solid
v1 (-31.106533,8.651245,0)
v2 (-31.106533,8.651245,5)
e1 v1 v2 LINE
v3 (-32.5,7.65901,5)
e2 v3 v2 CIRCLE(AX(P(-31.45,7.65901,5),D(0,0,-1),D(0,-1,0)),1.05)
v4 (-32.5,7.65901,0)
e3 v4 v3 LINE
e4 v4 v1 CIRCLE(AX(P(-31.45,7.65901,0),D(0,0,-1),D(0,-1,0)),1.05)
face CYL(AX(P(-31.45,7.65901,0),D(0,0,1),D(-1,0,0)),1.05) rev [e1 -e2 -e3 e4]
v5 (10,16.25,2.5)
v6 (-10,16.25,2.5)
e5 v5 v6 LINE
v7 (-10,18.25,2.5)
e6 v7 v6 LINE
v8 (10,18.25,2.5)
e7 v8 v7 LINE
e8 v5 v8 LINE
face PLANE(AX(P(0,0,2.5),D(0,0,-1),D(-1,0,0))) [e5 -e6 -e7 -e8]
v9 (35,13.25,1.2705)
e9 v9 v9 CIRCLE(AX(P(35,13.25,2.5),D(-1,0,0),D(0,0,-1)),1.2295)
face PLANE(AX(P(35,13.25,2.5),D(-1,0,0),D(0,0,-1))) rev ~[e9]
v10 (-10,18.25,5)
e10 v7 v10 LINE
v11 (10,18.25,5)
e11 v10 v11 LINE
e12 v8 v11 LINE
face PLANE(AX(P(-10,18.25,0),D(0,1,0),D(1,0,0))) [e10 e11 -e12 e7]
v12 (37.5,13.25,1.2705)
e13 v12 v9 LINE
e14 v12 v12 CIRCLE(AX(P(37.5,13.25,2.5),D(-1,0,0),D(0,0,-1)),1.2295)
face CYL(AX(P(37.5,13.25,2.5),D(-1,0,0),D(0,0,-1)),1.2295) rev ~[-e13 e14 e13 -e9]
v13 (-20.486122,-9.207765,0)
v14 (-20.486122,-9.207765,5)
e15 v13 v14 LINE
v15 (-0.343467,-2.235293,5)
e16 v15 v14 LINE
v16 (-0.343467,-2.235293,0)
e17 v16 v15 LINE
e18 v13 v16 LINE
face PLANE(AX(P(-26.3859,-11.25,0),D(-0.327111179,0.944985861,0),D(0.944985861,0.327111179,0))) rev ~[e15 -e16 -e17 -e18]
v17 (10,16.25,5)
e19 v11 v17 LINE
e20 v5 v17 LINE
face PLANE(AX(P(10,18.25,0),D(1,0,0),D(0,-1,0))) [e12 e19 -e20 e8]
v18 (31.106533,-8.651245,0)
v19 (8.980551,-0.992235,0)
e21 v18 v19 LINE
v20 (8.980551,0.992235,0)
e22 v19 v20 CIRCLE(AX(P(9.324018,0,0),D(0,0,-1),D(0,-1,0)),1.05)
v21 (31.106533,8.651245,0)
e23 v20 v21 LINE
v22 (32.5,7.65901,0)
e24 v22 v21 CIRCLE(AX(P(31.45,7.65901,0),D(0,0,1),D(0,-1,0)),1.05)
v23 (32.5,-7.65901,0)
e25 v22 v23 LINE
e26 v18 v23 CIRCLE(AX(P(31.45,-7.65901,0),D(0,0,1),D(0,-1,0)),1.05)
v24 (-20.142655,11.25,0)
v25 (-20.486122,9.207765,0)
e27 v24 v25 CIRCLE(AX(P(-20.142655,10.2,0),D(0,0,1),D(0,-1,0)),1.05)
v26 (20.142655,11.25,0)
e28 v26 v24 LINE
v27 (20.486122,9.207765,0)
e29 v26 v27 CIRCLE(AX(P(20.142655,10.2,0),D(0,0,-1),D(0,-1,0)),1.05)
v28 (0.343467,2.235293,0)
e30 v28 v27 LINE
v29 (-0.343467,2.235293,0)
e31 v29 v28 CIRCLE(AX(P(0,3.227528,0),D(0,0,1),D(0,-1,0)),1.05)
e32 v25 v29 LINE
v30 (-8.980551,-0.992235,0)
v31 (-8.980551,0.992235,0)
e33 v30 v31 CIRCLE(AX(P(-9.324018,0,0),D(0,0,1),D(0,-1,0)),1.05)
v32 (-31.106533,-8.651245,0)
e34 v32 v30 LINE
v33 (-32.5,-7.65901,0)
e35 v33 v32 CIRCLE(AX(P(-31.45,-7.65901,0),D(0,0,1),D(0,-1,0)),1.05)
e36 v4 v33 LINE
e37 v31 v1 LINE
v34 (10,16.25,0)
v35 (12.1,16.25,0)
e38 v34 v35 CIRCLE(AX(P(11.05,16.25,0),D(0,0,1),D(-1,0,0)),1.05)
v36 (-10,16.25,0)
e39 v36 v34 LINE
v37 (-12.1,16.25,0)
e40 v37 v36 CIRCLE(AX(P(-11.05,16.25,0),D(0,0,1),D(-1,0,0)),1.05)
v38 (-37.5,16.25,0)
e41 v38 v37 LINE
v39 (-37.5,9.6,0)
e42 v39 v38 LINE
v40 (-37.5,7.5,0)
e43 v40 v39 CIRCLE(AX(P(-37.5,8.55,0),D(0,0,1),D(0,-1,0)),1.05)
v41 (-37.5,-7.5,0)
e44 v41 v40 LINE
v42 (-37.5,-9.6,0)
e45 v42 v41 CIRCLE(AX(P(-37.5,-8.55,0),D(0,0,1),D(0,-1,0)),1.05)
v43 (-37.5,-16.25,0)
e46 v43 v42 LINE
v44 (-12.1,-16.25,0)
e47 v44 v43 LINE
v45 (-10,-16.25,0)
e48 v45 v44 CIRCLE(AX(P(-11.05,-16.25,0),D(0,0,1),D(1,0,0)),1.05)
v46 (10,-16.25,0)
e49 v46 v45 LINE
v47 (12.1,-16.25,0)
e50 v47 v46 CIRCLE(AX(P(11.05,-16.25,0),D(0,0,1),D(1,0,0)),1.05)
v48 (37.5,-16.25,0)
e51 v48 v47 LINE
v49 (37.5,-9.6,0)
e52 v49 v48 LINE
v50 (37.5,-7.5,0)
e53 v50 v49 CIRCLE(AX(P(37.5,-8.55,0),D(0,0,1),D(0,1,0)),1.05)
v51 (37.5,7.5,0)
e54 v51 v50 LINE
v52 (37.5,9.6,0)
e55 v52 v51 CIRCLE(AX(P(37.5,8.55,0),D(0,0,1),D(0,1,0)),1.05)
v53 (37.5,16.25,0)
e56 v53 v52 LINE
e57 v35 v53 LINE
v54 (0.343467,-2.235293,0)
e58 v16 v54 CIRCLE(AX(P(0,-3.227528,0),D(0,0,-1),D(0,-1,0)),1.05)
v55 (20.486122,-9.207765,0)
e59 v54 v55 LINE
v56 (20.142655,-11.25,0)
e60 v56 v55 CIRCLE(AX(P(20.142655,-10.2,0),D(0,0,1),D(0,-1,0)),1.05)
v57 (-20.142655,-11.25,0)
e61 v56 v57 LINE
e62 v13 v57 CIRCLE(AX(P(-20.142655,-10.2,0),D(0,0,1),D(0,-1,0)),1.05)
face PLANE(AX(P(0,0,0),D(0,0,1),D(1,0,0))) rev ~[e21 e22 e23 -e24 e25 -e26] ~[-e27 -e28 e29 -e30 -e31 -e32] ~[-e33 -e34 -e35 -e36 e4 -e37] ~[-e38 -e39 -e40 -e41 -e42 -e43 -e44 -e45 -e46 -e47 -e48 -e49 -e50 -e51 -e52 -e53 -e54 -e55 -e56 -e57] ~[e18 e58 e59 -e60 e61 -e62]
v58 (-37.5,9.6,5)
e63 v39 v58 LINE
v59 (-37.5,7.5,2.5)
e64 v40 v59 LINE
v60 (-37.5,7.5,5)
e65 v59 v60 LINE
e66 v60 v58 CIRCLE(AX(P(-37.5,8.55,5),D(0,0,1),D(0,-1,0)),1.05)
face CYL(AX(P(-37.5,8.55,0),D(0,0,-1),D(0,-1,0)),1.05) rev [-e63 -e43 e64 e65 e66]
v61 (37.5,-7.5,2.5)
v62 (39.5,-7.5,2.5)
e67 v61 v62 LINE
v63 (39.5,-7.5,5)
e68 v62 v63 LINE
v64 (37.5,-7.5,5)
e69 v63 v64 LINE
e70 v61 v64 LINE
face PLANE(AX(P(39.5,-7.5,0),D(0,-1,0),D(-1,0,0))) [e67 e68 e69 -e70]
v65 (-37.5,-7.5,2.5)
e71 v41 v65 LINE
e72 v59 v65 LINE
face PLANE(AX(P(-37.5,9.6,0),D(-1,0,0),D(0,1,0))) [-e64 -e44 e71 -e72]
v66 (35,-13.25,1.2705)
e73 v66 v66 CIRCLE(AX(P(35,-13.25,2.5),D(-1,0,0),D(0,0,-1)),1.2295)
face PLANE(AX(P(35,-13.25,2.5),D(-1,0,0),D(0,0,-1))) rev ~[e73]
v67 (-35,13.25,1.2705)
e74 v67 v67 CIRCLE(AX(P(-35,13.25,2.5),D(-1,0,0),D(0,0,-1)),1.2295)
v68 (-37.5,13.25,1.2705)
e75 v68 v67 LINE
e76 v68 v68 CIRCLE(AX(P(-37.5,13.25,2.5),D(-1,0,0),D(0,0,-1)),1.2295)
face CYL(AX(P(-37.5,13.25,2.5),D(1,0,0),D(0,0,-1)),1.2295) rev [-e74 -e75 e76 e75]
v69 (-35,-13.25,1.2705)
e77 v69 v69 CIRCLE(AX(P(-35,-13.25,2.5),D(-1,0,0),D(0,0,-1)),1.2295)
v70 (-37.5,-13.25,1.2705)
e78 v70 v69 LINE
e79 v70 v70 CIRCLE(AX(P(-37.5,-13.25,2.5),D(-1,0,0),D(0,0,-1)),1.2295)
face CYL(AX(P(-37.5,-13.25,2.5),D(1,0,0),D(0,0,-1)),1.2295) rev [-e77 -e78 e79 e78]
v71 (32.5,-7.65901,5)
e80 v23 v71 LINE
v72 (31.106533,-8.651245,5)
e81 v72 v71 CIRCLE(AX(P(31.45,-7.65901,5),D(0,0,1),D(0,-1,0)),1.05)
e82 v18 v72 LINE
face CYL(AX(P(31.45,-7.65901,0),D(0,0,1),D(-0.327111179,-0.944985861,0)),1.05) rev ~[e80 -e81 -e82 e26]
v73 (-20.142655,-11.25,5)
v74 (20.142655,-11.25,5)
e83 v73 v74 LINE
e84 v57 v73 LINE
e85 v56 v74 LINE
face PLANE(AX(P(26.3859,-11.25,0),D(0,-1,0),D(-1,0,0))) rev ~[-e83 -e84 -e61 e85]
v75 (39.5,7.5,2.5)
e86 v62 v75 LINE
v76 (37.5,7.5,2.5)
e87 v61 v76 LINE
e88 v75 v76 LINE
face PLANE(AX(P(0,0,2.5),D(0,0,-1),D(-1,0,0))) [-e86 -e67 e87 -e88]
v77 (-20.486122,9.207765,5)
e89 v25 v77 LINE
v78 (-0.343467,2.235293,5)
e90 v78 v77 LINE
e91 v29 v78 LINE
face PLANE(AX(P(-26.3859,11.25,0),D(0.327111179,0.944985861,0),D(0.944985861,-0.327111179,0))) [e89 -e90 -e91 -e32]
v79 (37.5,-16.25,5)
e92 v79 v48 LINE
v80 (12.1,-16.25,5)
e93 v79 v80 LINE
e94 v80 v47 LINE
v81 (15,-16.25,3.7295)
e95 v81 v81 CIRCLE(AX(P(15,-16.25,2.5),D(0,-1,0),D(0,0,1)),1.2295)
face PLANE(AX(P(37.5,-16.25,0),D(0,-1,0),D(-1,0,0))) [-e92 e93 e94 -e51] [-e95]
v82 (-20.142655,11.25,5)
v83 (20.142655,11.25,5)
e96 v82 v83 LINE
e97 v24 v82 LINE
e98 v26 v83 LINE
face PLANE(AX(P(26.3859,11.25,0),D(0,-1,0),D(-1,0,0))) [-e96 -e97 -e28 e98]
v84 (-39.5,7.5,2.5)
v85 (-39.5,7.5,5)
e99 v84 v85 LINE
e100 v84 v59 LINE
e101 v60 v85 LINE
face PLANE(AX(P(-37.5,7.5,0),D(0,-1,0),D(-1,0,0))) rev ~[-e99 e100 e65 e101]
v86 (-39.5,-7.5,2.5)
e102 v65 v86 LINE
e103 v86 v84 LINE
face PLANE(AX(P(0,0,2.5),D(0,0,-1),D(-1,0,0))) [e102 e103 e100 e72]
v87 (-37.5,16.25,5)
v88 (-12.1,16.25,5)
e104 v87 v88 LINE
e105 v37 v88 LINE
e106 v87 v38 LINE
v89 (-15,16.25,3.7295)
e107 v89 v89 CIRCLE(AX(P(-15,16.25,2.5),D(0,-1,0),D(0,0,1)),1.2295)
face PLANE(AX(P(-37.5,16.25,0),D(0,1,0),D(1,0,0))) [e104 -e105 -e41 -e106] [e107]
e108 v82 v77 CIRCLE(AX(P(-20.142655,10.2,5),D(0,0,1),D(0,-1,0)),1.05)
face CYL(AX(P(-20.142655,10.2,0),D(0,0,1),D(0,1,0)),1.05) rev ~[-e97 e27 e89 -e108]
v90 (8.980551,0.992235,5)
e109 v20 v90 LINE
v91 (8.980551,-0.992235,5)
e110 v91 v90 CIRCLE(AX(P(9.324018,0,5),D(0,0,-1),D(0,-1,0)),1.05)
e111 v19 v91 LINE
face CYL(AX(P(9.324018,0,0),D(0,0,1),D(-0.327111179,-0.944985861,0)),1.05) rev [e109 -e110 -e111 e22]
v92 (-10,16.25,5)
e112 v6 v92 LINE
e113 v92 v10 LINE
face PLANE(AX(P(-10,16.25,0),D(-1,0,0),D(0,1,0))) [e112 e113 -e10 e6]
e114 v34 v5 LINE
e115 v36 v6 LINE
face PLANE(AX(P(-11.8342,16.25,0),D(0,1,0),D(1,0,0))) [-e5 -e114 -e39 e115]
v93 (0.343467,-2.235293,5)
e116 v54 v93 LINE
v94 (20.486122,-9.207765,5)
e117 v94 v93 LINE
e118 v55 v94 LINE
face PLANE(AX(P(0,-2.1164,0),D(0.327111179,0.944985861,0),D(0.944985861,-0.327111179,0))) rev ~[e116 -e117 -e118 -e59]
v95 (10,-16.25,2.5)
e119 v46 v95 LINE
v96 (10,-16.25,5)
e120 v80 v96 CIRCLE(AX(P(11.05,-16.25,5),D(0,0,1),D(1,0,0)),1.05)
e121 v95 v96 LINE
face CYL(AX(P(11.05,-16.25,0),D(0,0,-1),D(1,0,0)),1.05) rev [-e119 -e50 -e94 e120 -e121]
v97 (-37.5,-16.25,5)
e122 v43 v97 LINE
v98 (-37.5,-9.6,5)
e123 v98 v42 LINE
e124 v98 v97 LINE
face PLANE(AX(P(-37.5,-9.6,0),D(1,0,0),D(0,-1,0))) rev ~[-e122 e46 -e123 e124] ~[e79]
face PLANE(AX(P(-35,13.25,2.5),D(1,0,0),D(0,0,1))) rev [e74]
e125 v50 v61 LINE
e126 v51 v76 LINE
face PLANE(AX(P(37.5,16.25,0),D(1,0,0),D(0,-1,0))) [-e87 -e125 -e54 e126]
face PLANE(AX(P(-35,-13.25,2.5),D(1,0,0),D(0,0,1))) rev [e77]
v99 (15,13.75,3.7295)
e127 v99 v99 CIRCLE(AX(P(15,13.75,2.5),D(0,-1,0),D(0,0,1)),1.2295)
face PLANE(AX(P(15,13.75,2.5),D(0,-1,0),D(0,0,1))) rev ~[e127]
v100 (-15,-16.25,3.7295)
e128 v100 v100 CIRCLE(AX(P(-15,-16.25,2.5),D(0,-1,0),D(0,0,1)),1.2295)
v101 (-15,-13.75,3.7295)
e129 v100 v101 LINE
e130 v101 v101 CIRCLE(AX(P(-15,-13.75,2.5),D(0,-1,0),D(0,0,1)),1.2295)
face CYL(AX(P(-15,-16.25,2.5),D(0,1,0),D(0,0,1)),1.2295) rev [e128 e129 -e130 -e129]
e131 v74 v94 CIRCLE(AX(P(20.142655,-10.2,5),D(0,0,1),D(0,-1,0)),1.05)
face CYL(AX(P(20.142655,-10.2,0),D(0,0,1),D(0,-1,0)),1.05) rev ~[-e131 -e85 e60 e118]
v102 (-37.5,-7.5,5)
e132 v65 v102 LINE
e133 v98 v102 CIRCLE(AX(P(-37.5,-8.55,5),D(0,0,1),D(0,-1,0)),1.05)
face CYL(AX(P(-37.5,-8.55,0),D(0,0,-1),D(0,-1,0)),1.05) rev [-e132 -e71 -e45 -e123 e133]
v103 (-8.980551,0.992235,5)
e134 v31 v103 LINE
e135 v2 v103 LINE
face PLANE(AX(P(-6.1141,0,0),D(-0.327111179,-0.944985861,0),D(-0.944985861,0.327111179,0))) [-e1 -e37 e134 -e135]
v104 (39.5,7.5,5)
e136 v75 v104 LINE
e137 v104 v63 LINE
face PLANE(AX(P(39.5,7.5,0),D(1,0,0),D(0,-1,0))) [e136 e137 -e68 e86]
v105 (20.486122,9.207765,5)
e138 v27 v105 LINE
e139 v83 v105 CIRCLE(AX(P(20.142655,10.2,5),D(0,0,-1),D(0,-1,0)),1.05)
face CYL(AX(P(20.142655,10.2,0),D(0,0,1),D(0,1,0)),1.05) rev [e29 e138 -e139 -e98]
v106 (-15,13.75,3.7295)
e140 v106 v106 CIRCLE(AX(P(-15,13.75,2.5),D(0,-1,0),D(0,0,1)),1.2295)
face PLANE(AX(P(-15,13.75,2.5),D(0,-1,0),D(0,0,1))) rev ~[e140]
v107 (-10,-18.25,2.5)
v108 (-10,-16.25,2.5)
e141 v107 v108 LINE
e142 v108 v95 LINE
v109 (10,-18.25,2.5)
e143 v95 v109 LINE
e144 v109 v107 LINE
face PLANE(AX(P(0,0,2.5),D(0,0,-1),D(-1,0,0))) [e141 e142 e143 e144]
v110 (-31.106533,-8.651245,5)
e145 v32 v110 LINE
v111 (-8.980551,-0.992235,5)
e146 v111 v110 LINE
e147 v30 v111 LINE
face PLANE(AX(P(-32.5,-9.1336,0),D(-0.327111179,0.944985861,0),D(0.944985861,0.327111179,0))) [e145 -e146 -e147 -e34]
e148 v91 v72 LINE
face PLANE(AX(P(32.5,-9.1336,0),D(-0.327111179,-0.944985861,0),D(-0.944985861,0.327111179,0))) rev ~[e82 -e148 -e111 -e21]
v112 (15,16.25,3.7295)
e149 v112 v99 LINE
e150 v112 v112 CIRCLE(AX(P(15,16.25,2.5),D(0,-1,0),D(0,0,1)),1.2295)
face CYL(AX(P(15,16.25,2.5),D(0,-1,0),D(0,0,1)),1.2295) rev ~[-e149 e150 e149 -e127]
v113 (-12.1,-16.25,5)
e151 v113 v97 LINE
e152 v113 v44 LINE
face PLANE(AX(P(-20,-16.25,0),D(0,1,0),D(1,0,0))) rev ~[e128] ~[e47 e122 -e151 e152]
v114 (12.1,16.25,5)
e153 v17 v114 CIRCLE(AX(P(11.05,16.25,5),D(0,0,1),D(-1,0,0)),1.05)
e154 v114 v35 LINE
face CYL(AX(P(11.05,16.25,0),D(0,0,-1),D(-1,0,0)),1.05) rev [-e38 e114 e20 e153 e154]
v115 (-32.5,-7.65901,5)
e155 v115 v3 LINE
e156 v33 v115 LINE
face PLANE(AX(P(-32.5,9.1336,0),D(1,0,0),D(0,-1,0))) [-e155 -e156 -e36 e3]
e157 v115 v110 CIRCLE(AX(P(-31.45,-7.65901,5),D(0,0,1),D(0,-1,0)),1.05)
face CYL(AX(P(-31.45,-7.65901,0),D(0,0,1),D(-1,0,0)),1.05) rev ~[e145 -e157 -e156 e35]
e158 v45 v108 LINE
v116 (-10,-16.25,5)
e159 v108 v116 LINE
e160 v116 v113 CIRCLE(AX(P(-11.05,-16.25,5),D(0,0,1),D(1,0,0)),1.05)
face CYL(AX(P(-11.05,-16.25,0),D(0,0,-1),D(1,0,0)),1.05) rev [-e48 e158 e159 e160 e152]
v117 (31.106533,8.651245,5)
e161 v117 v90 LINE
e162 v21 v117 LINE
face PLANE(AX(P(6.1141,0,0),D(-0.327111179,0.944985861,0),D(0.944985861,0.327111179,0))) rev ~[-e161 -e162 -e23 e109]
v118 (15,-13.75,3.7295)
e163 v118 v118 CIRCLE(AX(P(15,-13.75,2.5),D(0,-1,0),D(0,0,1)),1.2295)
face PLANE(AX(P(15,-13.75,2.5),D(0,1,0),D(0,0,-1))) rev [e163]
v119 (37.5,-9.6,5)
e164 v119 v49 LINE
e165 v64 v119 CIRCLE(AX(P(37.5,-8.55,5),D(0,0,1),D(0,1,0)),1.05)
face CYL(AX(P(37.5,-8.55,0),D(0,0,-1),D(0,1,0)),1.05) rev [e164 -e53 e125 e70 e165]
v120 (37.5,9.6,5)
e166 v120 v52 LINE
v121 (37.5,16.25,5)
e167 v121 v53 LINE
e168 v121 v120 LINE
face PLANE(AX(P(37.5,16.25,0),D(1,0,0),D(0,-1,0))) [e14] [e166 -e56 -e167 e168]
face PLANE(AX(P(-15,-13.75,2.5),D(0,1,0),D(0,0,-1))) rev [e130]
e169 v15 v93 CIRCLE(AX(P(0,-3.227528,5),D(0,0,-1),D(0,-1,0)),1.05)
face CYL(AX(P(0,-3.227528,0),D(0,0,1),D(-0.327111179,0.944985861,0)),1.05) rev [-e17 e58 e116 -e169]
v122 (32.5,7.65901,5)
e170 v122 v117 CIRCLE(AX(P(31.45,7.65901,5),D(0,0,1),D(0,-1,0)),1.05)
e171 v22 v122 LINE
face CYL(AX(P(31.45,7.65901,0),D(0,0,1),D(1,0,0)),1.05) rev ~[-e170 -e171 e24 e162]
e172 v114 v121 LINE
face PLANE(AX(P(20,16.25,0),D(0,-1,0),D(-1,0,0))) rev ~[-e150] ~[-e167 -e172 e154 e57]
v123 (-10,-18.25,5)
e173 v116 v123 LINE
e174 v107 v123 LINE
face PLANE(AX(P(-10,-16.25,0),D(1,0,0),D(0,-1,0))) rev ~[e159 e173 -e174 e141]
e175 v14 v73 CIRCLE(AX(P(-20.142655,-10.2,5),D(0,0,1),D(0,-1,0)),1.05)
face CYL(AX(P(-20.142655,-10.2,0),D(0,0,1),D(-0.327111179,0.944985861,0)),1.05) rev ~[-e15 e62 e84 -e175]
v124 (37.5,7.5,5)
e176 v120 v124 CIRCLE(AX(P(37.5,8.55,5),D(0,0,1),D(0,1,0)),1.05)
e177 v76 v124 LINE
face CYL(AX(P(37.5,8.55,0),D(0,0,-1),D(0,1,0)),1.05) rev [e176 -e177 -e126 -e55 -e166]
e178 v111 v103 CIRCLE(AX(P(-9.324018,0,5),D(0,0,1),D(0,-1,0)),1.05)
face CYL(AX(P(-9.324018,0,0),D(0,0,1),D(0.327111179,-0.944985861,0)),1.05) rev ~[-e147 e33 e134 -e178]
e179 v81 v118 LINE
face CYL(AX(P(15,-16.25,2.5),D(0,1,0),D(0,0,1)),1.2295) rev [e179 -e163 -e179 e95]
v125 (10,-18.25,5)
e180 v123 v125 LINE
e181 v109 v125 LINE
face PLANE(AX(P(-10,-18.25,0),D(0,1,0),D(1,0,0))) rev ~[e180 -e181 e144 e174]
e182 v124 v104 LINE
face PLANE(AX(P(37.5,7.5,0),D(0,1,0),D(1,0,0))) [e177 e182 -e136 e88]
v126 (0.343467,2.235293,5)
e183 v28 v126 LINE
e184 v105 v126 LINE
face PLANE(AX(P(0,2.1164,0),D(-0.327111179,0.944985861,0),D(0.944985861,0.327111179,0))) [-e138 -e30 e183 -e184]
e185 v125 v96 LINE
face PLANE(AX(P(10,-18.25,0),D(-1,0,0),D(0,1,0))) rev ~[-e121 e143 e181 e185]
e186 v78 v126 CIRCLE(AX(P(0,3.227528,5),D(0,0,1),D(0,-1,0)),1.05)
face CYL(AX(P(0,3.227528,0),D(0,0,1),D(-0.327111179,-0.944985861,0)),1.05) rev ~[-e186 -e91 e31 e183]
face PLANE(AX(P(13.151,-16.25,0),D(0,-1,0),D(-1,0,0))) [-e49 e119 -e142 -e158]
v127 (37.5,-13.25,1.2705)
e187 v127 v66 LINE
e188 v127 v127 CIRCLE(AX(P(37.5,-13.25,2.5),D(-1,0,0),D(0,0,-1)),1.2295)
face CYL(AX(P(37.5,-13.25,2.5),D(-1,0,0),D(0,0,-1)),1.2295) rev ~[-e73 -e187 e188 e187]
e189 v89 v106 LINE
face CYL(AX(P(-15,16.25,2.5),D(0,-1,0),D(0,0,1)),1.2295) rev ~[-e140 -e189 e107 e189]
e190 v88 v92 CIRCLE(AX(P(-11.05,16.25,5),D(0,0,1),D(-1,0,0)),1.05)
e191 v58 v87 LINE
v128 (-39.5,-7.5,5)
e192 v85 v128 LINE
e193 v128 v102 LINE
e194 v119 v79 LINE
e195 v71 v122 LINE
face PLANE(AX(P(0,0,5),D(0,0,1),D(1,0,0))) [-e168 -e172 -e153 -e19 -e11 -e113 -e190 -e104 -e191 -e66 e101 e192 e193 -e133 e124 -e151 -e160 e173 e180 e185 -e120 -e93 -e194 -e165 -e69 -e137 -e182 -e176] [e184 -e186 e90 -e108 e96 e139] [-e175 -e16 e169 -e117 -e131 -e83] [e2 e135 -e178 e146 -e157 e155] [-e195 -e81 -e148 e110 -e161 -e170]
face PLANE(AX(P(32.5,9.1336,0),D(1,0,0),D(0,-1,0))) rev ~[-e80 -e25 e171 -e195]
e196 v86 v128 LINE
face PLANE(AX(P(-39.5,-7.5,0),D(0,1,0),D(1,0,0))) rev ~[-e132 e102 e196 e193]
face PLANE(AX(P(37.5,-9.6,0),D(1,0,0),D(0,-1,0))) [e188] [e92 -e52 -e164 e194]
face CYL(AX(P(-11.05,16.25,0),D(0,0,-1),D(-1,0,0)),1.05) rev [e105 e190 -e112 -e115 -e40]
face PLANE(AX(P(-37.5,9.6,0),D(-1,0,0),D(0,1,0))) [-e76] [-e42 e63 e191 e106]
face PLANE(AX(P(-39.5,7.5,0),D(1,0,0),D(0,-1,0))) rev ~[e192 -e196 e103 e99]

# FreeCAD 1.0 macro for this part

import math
import FreeCAD as App
import Part
import Sketcher
Q = App.Units.Quantity


def edges_at(feature, points):
    """Names of the edges that pass closest to the given points."""
    edges = feature.Shape.Edges
    near = lambda p: min(range(len(edges)), key=lambda i: edges[i].distToShape(Part.Vertex(*p))[0])
    return sorted({f"Edge{near(p) + 1}" for p in points})

doc = App.newDocument("Part")
body = doc.addObject("PartDesign::Body", "Body")

# Sketch on XY plane
sketch1 = body.newObject("Sketcher::SketchObject", "Sketch")
sketch1.AttachmentSupport = (doc.getObject("XY_Plane"), [""])
sketch1.MapMode = "FlatFace"
sketch1.addGeometry(Part.LineSegment(App.Vector(-37.5, 16.2, 0), App.Vector(-37.5, 9.6, 0)), False)
sketch1.addGeometry(Part.ArcOfCircle(Part.Circle(App.Vector(-37.5, 8.6, 0), App.Vector(0, 0, 1), 1.1), math.radians(-90), math.radians(90)), False)
sketch1.addGeometry(Part.LineSegment(App.Vector(-37.5, 7.5, 0), App.Vector(-39.5, 7.5, 0)), False)
sketch1.addGeometry(Part.LineSegment(App.Vector(-39.5, 7.5, 0), App.Vector(-39.5, -7.5, 0)), False)
sketch1.addGeometry(Part.LineSegment(App.Vector(-39.5, -7.5, 0), App.Vector(-37.5, -7.5, 0)), False)
sketch1.addGeometry(Part.ArcOfCircle(Part.Circle(App.Vector(-37.5, -8.6, 0), App.Vector(0, 0, 1), 1), math.radians(-90), math.radians(90)), False)
sketch1.addGeometry(Part.LineSegment(App.Vector(-37.5, -9.6, 0), App.Vector(-37.5, -16.2, 0)), False)
sketch1.addGeometry(Part.LineSegment(App.Vector(-37.5, -16.2, 0), App.Vector(-12.1, -16.2, 0)), False)
sketch1.addGeometry(Part.ArcOfCircle(Part.Circle(App.Vector(-11.1, -16.2, 0), App.Vector(0, 0, 1), 1.1), math.radians(0), math.radians(180)), False)
sketch1.addGeometry(Part.LineSegment(App.Vector(-10, -16.2, 0), App.Vector(-10, -18.2, 0)), False)
sketch1.addGeometry(Part.LineSegment(App.Vector(-10, -18.2, 0), App.Vector(10, -18.2, 0)), False)
sketch1.addGeometry(Part.LineSegment(App.Vector(10, -18.2, 0), App.Vector(10, -16.2, 0)), False)
sketch1.addGeometry(Part.ArcOfCircle(Part.Circle(App.Vector(11.1, -16.2, 0), App.Vector(0, 0, 1), 1), math.radians(0), math.radians(180)), False)
sketch1.addGeometry(Part.LineSegment(App.Vector(12.1, -16.2, 0), App.Vector(37.5, -16.2, 0)), False)
sketch1.addGeometry(Part.LineSegment(App.Vector(37.5, -16.2, 0), App.Vector(37.5, -9.6, 0)), False)
sketch1.addGeometry(Part.ArcOfCircle(Part.Circle(App.Vector(37.5, -8.6, 0), App.Vector(0, 0, 1), 1.1), math.radians(90), math.radians(270)), False)
sketch1.addGeometry(Part.LineSegment(App.Vector(37.5, -7.5, 0), App.Vector(39.5, -7.5, 0)), False)
sketch1.addGeometry(Part.LineSegment(App.Vector(39.5, -7.5, 0), App.Vector(39.5, 7.5, 0)), False)
sketch1.addGeometry(Part.LineSegment(App.Vector(39.5, 7.5, 0), App.Vector(37.5, 7.5, 0)), False)
sketch1.addGeometry(Part.ArcOfCircle(Part.Circle(App.Vector(37.5, 8.6, 0), App.Vector(0, 0, 1), 1), math.radians(90), math.radians(270)), False)
sketch1.addGeometry(Part.LineSegment(App.Vector(37.5, 9.6, 0), App.Vector(37.5, 16.2, 0)), False)
sketch1.addGeometry(Part.LineSegment(App.Vector(37.5, 16.2, 0), App.Vector(12.1, 16.2, 0)), False)
sketch1.addGeometry(Part.ArcOfCircle(Part.Circle(App.Vector(11.1, 16.2, 0), App.Vector(0, 0, 1), 1.1), math.radians(180), math.radians(360)), False)
sketch1.addGeometry(Part.LineSegment(App.Vector(10, 16.2, 0), App.Vector(10, 18.2, 0)), False)
sketch1.addGeometry(Part.LineSegment(App.Vector(10, 18.2, 0), App.Vector(-10, 18.2, 0)), False)
sketch1.addGeometry(Part.LineSegment(App.Vector(-10, 18.2, 0), App.Vector(-10, 16.2, 0)), False)
sketch1.addGeometry(Part.ArcOfCircle(Part.Circle(App.Vector(-11.1, 16.2, 0), App.Vector(0, 0, 1), 1), math.radians(180), math.radians(360)), False)
sketch1.addGeometry(Part.LineSegment(App.Vector(-12.1, 16.2, 0), App.Vector(-37.5, 16.2, 0)), False)
sketch1.addConstraint(Sketcher.Constraint("Coincident", 0, 2, 1, 2))
sketch1.addConstraint(Sketcher.Constraint("Tangent", 1, 1, 2, 1))
sketch1.addConstraint(Sketcher.Constraint("Coincident", 2, 2, 3, 1))
sketch1.addConstraint(Sketcher.Constraint("Coincident", 3, 2, 4, 1))
sketch1.addConstraint(Sketcher.Constraint("Tangent", 4, 2, 5, 2))
sketch1.addConstraint(Sketcher.Constraint("Coincident", 5, 1, 6, 1))
sketch1.addConstraint(Sketcher.Constraint("Coincident", 6, 2, 7, 1))
sketch1.addConstraint(Sketcher.Constraint("Coincident", 7, 2, 8, 2))
sketch1.addConstraint(Sketcher.Constraint("Tangent", 8, 1, 9, 1))
sketch1.addConstraint(Sketcher.Constraint("Coincident", 9, 2, 10, 1))
sketch1.addConstraint(Sketcher.Constraint("Coincident", 10, 2, 11, 1))
sketch1.addConstraint(Sketcher.Constraint("Tangent", 11, 2, 12, 2))
sketch1.addConstraint(Sketcher.Constraint("Coincident", 12, 1, 13, 1))
sketch1.addConstraint(Sketcher.Constraint("Coincident", 13, 2, 14, 1))
sketch1.addConstraint(Sketcher.Constraint("Coincident", 14, 2, 15, 2))
sketch1.addConstraint(Sketcher.Constraint("Tangent", 15, 1, 16, 1))
sketch1.addConstraint(Sketcher.Constraint("Coincident", 16, 2, 17, 1))
sketch1.addConstraint(Sketcher.Constraint("Coincident", 17, 2, 18, 1))
sketch1.addConstraint(Sketcher.Constraint("Tangent", 18, 2, 19, 2))
sketch1.addConstraint(Sketcher.Constraint("Coincident", 19, 1, 20, 1))
sketch1.addConstraint(Sketcher.Constraint("Coincident", 20, 2, 21, 1))
sketch1.addConstraint(Sketcher.Constraint("Coincident", 21, 2, 22, 2))
sketch1.addConstraint(Sketcher.Constraint("Tangent", 22, 1, 23, 1))
sketch1.addConstraint(Sketcher.Constraint("Coincident", 23, 2, 24, 1))
sketch1.addConstraint(Sketcher.Constraint("Coincident", 24, 2, 25, 1))
sketch1.addConstraint(Sketcher.Constraint("Tangent", 25, 2, 26, 2))
sketch1.addConstraint(Sketcher.Constraint("Coincident", 26, 1, 27, 1))
sketch1.addConstraint(Sketcher.Constraint("Coincident", 27, 2, 0, 1))
sketch1.addConstraint(Sketcher.Constraint("Vertical", 0))
sketch1.addConstraint(Sketcher.Constraint("Horizontal", 2))
sketch1.addConstraint(Sketcher.Constraint("Vertical", 3))
sketch1.addConstraint(Sketcher.Constraint("Horizontal", 4))
sketch1.addConstraint(Sketcher.Constraint("Vertical", 6))
sketch1.addConstraint(Sketcher.Constraint("Horizontal", 7))
sketch1.addConstraint(Sketcher.Constraint("Vertical", 9))
sketch1.addConstraint(Sketcher.Constraint("Horizontal", 10))
sketch1.addConstraint(Sketcher.Constraint("Vertical", 11))
sketch1.addConstraint(Sketcher.Constraint("Horizontal", 13))
sketch1.addConstraint(Sketcher.Constraint("Vertical", 14))
sketch1.addConstraint(Sketcher.Constraint("Horizontal", 16))
sketch1.addConstraint(Sketcher.Constraint("Vertical", 17))
sketch1.addConstraint(Sketcher.Constraint("Horizontal", 18))
sketch1.addConstraint(Sketcher.Constraint("Vertical", 20))
sketch1.addConstraint(Sketcher.Constraint("Horizontal", 21))
sketch1.addConstraint(Sketcher.Constraint("Vertical", 23))
sketch1.addConstraint(Sketcher.Constraint("Horizontal", 24))
sketch1.addConstraint(Sketcher.Constraint("Vertical", 25))
sketch1.addConstraint(Sketcher.Constraint("Horizontal", 27))
sketch1.addConstraint(Sketcher.Constraint("Equal", 1, 5))
sketch1.addConstraint(Sketcher.Constraint("Equal", 5, 8))
sketch1.addConstraint(Sketcher.Constraint("Equal", 8, 12))
sketch1.addConstraint(Sketcher.Constraint("Equal", 12, 15))
sketch1.addConstraint(Sketcher.Constraint("Equal", 15, 19))
sketch1.addConstraint(Sketcher.Constraint("Equal", 19, 22))
sketch1.addConstraint(Sketcher.Constraint("Equal", 22, 26))
sketch1.addConstraint(Sketcher.Constraint("Symmetric", 1, 3, 15, 3, -1, 1))
sketch1.addConstraint(Sketcher.Constraint("Symmetric", 5, 3, 19, 3, -1, 1))
sketch1.addConstraint(Sketcher.Constraint("Symmetric", 8, 3, 22, 3, -1, 1))
sketch1.addConstraint(Sketcher.Constraint("Symmetric", 12, 3, 26, 3, -1, 1))
sketch1.addConstraint(Sketcher.Constraint("Symmetric", 6, 2, 20, 2, -1, 1))
sketch1.addConstraint(Sketcher.Constraint("Symmetric", 13, 2, 27, 2, -1, 1))
sketch1.addConstraint(Sketcher.Constraint("Symmetric", 8, 3, 12, 3, -2))
sketch1.addConstraint(Sketcher.Constraint("Symmetric", 5, 3, 15, 3, -2))
sketch1.addConstraint(Sketcher.Constraint("Symmetric", 6, 2, 13, 2, -2))
sketch1.addConstraint(Sketcher.Constraint("Horizontal", 12, 3, 6, 2))
sketch1.addConstraint(Sketcher.Constraint("Vertical", 5, 3, 0, 2))
sketch1.addConstraint(Sketcher.Constraint("Equal", 4, 16))
sketch1.addConstraint(Sketcher.Constraint("Equal", 18, 9))
sketch1.addConstraint(Sketcher.Constraint("Equal", 11, 23))
sketch1.addConstraint(Sketcher.Constraint("DistanceX", 2, 2, 2, 1, Q("2 mm")))
sketch1.addConstraint(Sketcher.Constraint("DistanceX", 10, 1, 10, 2, Q("20 mm")))
sketch1.addConstraint(Sketcher.Constraint("Radius", 1, Q("1.05 mm")))
sketch1.addConstraint(Sketcher.Constraint("DistanceX", 5, 3, 15, 3, Q("75 mm")))
sketch1.addConstraint(Sketcher.Constraint("DistanceY", 12, 3, 22, 3, Q("32.5 mm")))
sketch1.addConstraint(Sketcher.Constraint("DistanceY", 3, 2, 3, 1, Q("15 mm")))
pad1 = body.newObject("PartDesign::Pad", "Pad")
pad1.Profile = sketch1
pad1.Length = 5

# Sketch on XY plane
sketch2 = body.newObject("Sketcher::SketchObject", "Sketch001")
sketch2.AttachmentSupport = (doc.getObject("XY_Plane"), [""])
sketch2.MapMode = "FlatFace"
sketch2.addGeometry(Part.LineSegment(App.Vector(-38, 21, 0), App.Vector(-38, -14, 0)), False)
sketch2.addGeometry(Part.LineSegment(App.Vector(-38, -14, 0), App.Vector(-43, -14, 0)), False)
sketch2.addGeometry(Part.LineSegment(App.Vector(-43, -14, 0), App.Vector(-43, 21, 0)), False)
sketch2.addGeometry(Part.LineSegment(App.Vector(-43, 21, 0), App.Vector(-38, 21, 0)), False)
sketch2.addGeometry(Part.LineSegment(App.Vector(-18, -16, 0), App.Vector(13, -16, 0)), False)
sketch2.addGeometry(Part.LineSegment(App.Vector(13, -16, 0), App.Vector(13, -22, 0)), False)
sketch2.addGeometry(Part.LineSegment(App.Vector(13, -22, 0), App.Vector(-18, -22, 0)), False)
sketch2.addGeometry(Part.LineSegment(App.Vector(-18, -22, 0), App.Vector(-18, -16, 0)), False)
sketch2.addGeometry(Part.LineSegment(App.Vector(38, -17, 0), App.Vector(38, 17, 0)), False)
sketch2.addGeometry(Part.LineSegment(App.Vector(38, 17, 0), App.Vector(46, 17, 0)), False)
sketch2.addGeometry(Part.LineSegment(App.Vector(46, 17, 0), App.Vector(46, -17, 0)), False)
sketch2.addGeometry(Part.LineSegment(App.Vector(46, -17, 0), App.Vector(38, -17, 0)), False)
sketch2.addGeometry(Part.LineSegment(App.Vector(17, 25, 0), App.Vector(17, 16, 0)), False)
sketch2.addGeometry(Part.LineSegment(App.Vector(17, 16, 0), App.Vector(-12, 16, 0)), False)
sketch2.addGeometry(Part.LineSegment(App.Vector(-12, 16, 0), App.Vector(-12, 25, 0)), False)
sketch2.addGeometry(Part.LineSegment(App.Vector(-12, 25, 0), App.Vector(17, 25, 0)), False)
sketch2.addConstraint(Sketcher.Constraint("Coincident", 0, 2, 1, 1))
sketch2.addConstraint(Sketcher.Constraint("Coincident", 1, 2, 2, 1))
sketch2.addConstraint(Sketcher.Constraint("Coincident", 2, 2, 3, 1))
sketch2.addConstraint(Sketcher.Constraint("Coincident", 3, 2, 0, 1))
sketch2.addConstraint(Sketcher.Constraint("Coincident", 4, 2, 5, 1))
sketch2.addConstraint(Sketcher.Constraint("Coincident", 5, 2, 6, 1))
sketch2.addConstraint(Sketcher.Constraint("Coincident", 6, 2, 7, 1))
sketch2.addConstraint(Sketcher.Constraint("Coincident", 7, 2, 4, 1))
sketch2.addConstraint(Sketcher.Constraint("Coincident", 8, 2, 9, 1))
sketch2.addConstraint(Sketcher.Constraint("Coincident", 9, 2, 10, 1))
sketch2.addConstraint(Sketcher.Constraint("Coincident", 10, 2, 11, 1))
sketch2.addConstraint(Sketcher.Constraint("Coincident", 11, 2, 8, 1))
sketch2.addConstraint(Sketcher.Constraint("Coincident", 12, 2, 13, 1))
sketch2.addConstraint(Sketcher.Constraint("Coincident", 13, 2, 14, 1))
sketch2.addConstraint(Sketcher.Constraint("Coincident", 14, 2, 15, 1))
sketch2.addConstraint(Sketcher.Constraint("Coincident", 15, 2, 12, 1))
sketch2.addConstraint(Sketcher.Constraint("Vertical", 0))
sketch2.addConstraint(Sketcher.Constraint("Horizontal", 1))
sketch2.addConstraint(Sketcher.Constraint("Vertical", 2))
sketch2.addConstraint(Sketcher.Constraint("Horizontal", 3))
sketch2.addConstraint(Sketcher.Constraint("Horizontal", 4))
sketch2.addConstraint(Sketcher.Constraint("Vertical", 5))
sketch2.addConstraint(Sketcher.Constraint("Horizontal", 6))
sketch2.addConstraint(Sketcher.Constraint("Vertical", 7))
sketch2.addConstraint(Sketcher.Constraint("Vertical", 8))
sketch2.addConstraint(Sketcher.Constraint("Horizontal", 9))
sketch2.addConstraint(Sketcher.Constraint("Vertical", 10))
sketch2.addConstraint(Sketcher.Constraint("Horizontal", 11))
sketch2.addConstraint(Sketcher.Constraint("Vertical", 12))
sketch2.addConstraint(Sketcher.Constraint("Horizontal", 13))
sketch2.addConstraint(Sketcher.Constraint("Vertical", 14))
sketch2.addConstraint(Sketcher.Constraint("Horizontal", 15))
sketch2.addConstraint(Sketcher.Constraint("DistanceX", 3, 2, 8, 2, Q("75 mm")))
sketch2.addConstraint(Sketcher.Constraint("DistanceX", 0, 2, -1, 1, Q("37.5 mm")))
sketch2.addConstraint(Sketcher.Constraint("DistanceY", 4, 2, 12, 2, Q("32.5 mm")))
sketch2.addConstraint(Sketcher.Constraint("DistanceX", 1, 2, 1, 1, Q("5.858 mm")))
sketch2.addConstraint(Sketcher.Constraint("DistanceY", 4, 2, -1, 1, Q("16.25 mm")))
sketch2.addConstraint(Sketcher.Constraint("DistanceX", 4, 1, 4, 2, Q("30.9305 mm")))
sketch2.addConstraint(Sketcher.Constraint("DistanceX", 9, 1, 9, 2, Q("8.1427 mm")))
sketch2.addConstraint(Sketcher.Constraint("DistanceX", 13, 2, 13, 1, Q("28.9713 mm")))
sketch2.addConstraint(Sketcher.Constraint("DistanceY", 0, 2, 0, 1, Q("34.7998 mm")))
sketch2.addConstraint(Sketcher.Constraint("DistanceY", 5, 2, 5, 1, Q("5.3357 mm")))
sketch2.addConstraint(Sketcher.Constraint("DistanceY", 8, 1, 8, 2, Q("34.0635 mm")))
sketch2.addConstraint(Sketcher.Constraint("DistanceY", 12, 2, 12, 1, Q("8.9348 mm")))
sketch2.addConstraint(Sketcher.Constraint("DistanceX", -1, 1, 4, 2, Q("13.151 mm")))
sketch2.addConstraint(Sketcher.Constraint("DistanceY", 10, 2, -1, 1, Q("16.751 mm")))
sketch2.addConstraint(Sketcher.Constraint("DistanceX", -1, 1, 12, 2, Q("17.137 mm")))
sketch2.addConstraint(Sketcher.Constraint("DistanceY", 8, 2, 3, 2, Q("3.868 mm")))
pocket1 = body.newObject("PartDesign::Pocket", "Pocket")
pocket1.Profile = sketch2
pocket1.Length = 2.5
pocket1.Reversed = True

# Sketch on XZ plane
sketch3 = body.newObject("Sketcher::SketchObject", "Sketch002")
sketch3.AttachmentSupport = (doc.getObject("XZ_Plane"), [""])
sketch3.MapMode = "FlatFace"
sketch3.AttachmentOffset = App.Placement(App.Vector(0, 0, -16.25), App.Rotation())
sketch3.addGeometry(Part.Circle(App.Vector(15, 2.5, 0), App.Vector(0, 0, 1), 1.2), False)
sketch3.addGeometry(Part.Circle(App.Vector(-15, 2.5, 0), App.Vector(0, 0, 1), 1.2), False)
sketch3.addConstraint(Sketcher.Constraint("Equal", 0, 1))
sketch3.addConstraint(Sketcher.Constraint("Symmetric", 0, 3, 1, 3, -2))
sketch3.addConstraint(Sketcher.Constraint("Diameter", 0, Q("2.459 mm")))
sketch3.addConstraint(Sketcher.Constraint("DistanceX", -1, 1, 0, 3, Q("15 mm")))
sketch3.addConstraint(Sketcher.Constraint("DistanceY", -1, 1, 0, 3, Q("2.5 mm")))
doc.recompute()
hole = body.newObject("PartDesign::Hole", "Hole")
hole.Profile = sketch3
hole.ThreadType = "None"
hole.Diameter = 2.459
hole.DepthType = "Dimension"
hole.Depth = 2.5
hole.DrillPoint = "Flat"
hole.Reversed = True
doc.recompute()

mirrored = body.newObject("PartDesign::Mirrored", "Mirrored")
mirrored.Originals = [hole]
mirrored.MirrorPlane = (doc.getObject("XZ_Plane"), [""])
body.Tip = mirrored

# Sketch on YZ plane
sketch4 = body.newObject("Sketcher::SketchObject", "Sketch003")
sketch4.AttachmentSupport = (doc.getObject("YZ_Plane"), [""])
sketch4.MapMode = "FlatFace"
sketch4.AttachmentOffset = App.Placement(App.Vector(0, 0, 37.5), App.Rotation())
sketch4.addGeometry(Part.Circle(App.Vector(-13.2, 2.5, 0), App.Vector(0, 0, 1), 1.2), False)
sketch4.addGeometry(Part.Circle(App.Vector(13.2, 2.5, 0), App.Vector(0, 0, 1), 1.2), False)
sketch4.addConstraint(Sketcher.Constraint("Equal", 0, 1))
sketch4.addConstraint(Sketcher.Constraint("Symmetric", 0, 3, 1, 3, -2))
sketch4.addConstraint(Sketcher.Constraint("Diameter", 0, Q("2.459 mm")))
sketch4.addConstraint(Sketcher.Constraint("DistanceY", -1, 1, 0, 3, Q("2.5 mm")))
sketch4.addConstraint(Sketcher.Constraint("DistanceX", 0, 3, 1, 3, Q("26.5 mm")))
doc.recompute()
hole2 = body.newObject("PartDesign::Hole", "Hole001")
hole2.Profile = sketch4
hole2.ThreadType = "None"
hole2.Diameter = 2.459
hole2.DepthType = "Dimension"
hole2.Depth = 2.5
hole2.DrillPoint = "Flat"
doc.recompute()

mirrored2 = body.newObject("PartDesign::Mirrored", "Mirrored001")
mirrored2.Originals = [hole2]
mirrored2.MirrorPlane = (doc.getObject("YZ_Plane"), [""])
body.Tip = mirrored2

# Sketch on XY plane
sketch5 = body.newObject("Sketcher::SketchObject", "Sketch004")
sketch5.AttachmentSupport = (doc.getObject("XY_Plane"), [""])
sketch5.MapMode = "FlatFace"
sketch5.addGeometry(Part.LineSegment(App.Vector(6, 0, 0), App.Vector(32, 9, 0)), False)
sketch5.addGeometry(Part.LineSegment(App.Vector(32, 9, 0), App.Vector(32, -9, 0)), False)
sketch5.addGeometry(Part.LineSegment(App.Vector(32, -9, 0), App.Vector(6, 0, 0)), False)
sketch5.addGeometry(Part.LineSegment(App.Vector(-26, 11, 0), App.Vector(26, 11, 0)), False)
sketch5.addGeometry(Part.LineSegment(App.Vector(26, 11, 0), App.Vector(0, 2, 0)), False)
sketch5.addGeometry(Part.LineSegment(App.Vector(0, 2, 0), App.Vector(-26, 11, 0)), False)
sketch5.addGeometry(Part.LineSegment(App.Vector(0, -2, 0), App.Vector(26, -11, 0)), False)
sketch5.addGeometry(Part.LineSegment(App.Vector(26, -11, 0), App.Vector(-26, -11, 0)), False)
sketch5.addGeometry(Part.LineSegment(App.Vector(-26, -11, 0), App.Vector(0, -2, 0)), False)
sketch5.addGeometry(Part.LineSegment(App.Vector(-32, -9, 0), App.Vector(-32, 9, 0)), False)
sketch5.addGeometry(Part.LineSegment(App.Vector(-32, 9, 0), App.Vector(-6, 0, 0)), False)
sketch5.addGeometry(Part.LineSegment(App.Vector(-6, 0, 0), App.Vector(-32, -9, 0)), False)
sketch5.addConstraint(Sketcher.Constraint("Coincident", 0, 2, 1, 1))
sketch5.addConstraint(Sketcher.Constraint("Coincident", 1, 2, 2, 1))
sketch5.addConstraint(Sketcher.Constraint("Coincident", 2, 2, 0, 1))
sketch5.addConstraint(Sketcher.Constraint("Coincident", 3, 2, 4, 1))
sketch5.addConstraint(Sketcher.Constraint("Coincident", 4, 2, 5, 1))
sketch5.addConstraint(Sketcher.Constraint("Coincident", 5, 2, 3, 1))
sketch5.addConstraint(Sketcher.Constraint("Coincident", 6, 2, 7, 1))
sketch5.addConstraint(Sketcher.Constraint("Coincident", 7, 2, 8, 1))
sketch5.addConstraint(Sketcher.Constraint("Coincident", 8, 2, 6, 1))
sketch5.addConstraint(Sketcher.Constraint("Coincident", 9, 2, 10, 1))
sketch5.addConstraint(Sketcher.Constraint("Coincident", 10, 2, 11, 1))
sketch5.addConstraint(Sketcher.Constraint("Coincident", 11, 2, 9, 1))
sketch5.addConstraint(Sketcher.Constraint("Vertical", 1))
sketch5.addConstraint(Sketcher.Constraint("Horizontal", 3))
sketch5.addConstraint(Sketcher.Constraint("Horizontal", 7))
sketch5.addConstraint(Sketcher.Constraint("Vertical", 9))
sketch5.addConstraint(Sketcher.Constraint("Symmetric", 5, 2, 6, 2, -1, 1))
sketch5.addConstraint(Sketcher.Constraint("Symmetric", 4, 2, 8, 2, -1, 1))
sketch5.addConstraint(Sketcher.Constraint("Symmetric", 1, 2, 9, 2, -1, 1))
sketch5.addConstraint(Sketcher.Constraint("Symmetric", 2, 2, 10, 2, -1, 1))
sketch5.addConstraint(Sketcher.Constraint("PointOnObject", 2, 2, -1))
sketch5.addConstraint(Sketcher.Constraint("PointOnObject", 4, 2, -2))
sketch5.addConstraint(Sketcher.Constraint("Parallel", 0, 4))
sketch5.addConstraint(Sketcher.Constraint("Parallel", 2, 5))
sketch5.addConstraint(Sketcher.Constraint("Parallel", 4, 8))
sketch5.addConstraint(Sketcher.Constraint("Parallel", 8, 11))
sketch5.addConstraint(Sketcher.Constraint("Horizontal", 0, 2, 9, 2))
sketch5.addConstraint(Sketcher.Constraint("Equal", 2, 4))
sketch5.addConstraint(Sketcher.Constraint("DistanceX", -1, 1, 0, 2, Q("32.5 mm")))
sketch5.addConstraint(Sketcher.Constraint("DistanceY", 6, 2, 3, 2, Q("22.5 mm")))
sketch5.addConstraint(Sketcher.Constraint("Distance", 0, Q("27.922 mm")))
sketch5.addConstraint(Sketcher.Constraint("DistanceX", 3, 1, 3, 2, Q("52.7718 mm")))
pocket2 = body.newObject("PartDesign::Pocket", "Pocket001")
pocket2.Profile = sketch5
pocket2.Length = 10
pocket2.Reversed = True
doc.recompute()

fillet = body.newObject("PartDesign::Fillet", "Fillet")
fillet.Base = (pocket2, edges_at(pocket2, [
    (32.5, 9.134, 2.5),
    (32.5, -9.134, 2.5),
    (26.386, 11.25, 2.5),
    (6.114, 0, 2.5),
    (0, -2.116, 2.5),
    (0, 2.116, 2.5),
    (-32.5, -9.134, 2.5),
    (26.386, -11.25, 2.5),
    (-32.5, 9.134, 2.5),
    (-26.386, 11.25, 2.5),
    (-26.386, -11.25, 2.5),
    (-6.114, 0, 2.5),
]))
fillet.Radius = 1.05

doc.recompute()
